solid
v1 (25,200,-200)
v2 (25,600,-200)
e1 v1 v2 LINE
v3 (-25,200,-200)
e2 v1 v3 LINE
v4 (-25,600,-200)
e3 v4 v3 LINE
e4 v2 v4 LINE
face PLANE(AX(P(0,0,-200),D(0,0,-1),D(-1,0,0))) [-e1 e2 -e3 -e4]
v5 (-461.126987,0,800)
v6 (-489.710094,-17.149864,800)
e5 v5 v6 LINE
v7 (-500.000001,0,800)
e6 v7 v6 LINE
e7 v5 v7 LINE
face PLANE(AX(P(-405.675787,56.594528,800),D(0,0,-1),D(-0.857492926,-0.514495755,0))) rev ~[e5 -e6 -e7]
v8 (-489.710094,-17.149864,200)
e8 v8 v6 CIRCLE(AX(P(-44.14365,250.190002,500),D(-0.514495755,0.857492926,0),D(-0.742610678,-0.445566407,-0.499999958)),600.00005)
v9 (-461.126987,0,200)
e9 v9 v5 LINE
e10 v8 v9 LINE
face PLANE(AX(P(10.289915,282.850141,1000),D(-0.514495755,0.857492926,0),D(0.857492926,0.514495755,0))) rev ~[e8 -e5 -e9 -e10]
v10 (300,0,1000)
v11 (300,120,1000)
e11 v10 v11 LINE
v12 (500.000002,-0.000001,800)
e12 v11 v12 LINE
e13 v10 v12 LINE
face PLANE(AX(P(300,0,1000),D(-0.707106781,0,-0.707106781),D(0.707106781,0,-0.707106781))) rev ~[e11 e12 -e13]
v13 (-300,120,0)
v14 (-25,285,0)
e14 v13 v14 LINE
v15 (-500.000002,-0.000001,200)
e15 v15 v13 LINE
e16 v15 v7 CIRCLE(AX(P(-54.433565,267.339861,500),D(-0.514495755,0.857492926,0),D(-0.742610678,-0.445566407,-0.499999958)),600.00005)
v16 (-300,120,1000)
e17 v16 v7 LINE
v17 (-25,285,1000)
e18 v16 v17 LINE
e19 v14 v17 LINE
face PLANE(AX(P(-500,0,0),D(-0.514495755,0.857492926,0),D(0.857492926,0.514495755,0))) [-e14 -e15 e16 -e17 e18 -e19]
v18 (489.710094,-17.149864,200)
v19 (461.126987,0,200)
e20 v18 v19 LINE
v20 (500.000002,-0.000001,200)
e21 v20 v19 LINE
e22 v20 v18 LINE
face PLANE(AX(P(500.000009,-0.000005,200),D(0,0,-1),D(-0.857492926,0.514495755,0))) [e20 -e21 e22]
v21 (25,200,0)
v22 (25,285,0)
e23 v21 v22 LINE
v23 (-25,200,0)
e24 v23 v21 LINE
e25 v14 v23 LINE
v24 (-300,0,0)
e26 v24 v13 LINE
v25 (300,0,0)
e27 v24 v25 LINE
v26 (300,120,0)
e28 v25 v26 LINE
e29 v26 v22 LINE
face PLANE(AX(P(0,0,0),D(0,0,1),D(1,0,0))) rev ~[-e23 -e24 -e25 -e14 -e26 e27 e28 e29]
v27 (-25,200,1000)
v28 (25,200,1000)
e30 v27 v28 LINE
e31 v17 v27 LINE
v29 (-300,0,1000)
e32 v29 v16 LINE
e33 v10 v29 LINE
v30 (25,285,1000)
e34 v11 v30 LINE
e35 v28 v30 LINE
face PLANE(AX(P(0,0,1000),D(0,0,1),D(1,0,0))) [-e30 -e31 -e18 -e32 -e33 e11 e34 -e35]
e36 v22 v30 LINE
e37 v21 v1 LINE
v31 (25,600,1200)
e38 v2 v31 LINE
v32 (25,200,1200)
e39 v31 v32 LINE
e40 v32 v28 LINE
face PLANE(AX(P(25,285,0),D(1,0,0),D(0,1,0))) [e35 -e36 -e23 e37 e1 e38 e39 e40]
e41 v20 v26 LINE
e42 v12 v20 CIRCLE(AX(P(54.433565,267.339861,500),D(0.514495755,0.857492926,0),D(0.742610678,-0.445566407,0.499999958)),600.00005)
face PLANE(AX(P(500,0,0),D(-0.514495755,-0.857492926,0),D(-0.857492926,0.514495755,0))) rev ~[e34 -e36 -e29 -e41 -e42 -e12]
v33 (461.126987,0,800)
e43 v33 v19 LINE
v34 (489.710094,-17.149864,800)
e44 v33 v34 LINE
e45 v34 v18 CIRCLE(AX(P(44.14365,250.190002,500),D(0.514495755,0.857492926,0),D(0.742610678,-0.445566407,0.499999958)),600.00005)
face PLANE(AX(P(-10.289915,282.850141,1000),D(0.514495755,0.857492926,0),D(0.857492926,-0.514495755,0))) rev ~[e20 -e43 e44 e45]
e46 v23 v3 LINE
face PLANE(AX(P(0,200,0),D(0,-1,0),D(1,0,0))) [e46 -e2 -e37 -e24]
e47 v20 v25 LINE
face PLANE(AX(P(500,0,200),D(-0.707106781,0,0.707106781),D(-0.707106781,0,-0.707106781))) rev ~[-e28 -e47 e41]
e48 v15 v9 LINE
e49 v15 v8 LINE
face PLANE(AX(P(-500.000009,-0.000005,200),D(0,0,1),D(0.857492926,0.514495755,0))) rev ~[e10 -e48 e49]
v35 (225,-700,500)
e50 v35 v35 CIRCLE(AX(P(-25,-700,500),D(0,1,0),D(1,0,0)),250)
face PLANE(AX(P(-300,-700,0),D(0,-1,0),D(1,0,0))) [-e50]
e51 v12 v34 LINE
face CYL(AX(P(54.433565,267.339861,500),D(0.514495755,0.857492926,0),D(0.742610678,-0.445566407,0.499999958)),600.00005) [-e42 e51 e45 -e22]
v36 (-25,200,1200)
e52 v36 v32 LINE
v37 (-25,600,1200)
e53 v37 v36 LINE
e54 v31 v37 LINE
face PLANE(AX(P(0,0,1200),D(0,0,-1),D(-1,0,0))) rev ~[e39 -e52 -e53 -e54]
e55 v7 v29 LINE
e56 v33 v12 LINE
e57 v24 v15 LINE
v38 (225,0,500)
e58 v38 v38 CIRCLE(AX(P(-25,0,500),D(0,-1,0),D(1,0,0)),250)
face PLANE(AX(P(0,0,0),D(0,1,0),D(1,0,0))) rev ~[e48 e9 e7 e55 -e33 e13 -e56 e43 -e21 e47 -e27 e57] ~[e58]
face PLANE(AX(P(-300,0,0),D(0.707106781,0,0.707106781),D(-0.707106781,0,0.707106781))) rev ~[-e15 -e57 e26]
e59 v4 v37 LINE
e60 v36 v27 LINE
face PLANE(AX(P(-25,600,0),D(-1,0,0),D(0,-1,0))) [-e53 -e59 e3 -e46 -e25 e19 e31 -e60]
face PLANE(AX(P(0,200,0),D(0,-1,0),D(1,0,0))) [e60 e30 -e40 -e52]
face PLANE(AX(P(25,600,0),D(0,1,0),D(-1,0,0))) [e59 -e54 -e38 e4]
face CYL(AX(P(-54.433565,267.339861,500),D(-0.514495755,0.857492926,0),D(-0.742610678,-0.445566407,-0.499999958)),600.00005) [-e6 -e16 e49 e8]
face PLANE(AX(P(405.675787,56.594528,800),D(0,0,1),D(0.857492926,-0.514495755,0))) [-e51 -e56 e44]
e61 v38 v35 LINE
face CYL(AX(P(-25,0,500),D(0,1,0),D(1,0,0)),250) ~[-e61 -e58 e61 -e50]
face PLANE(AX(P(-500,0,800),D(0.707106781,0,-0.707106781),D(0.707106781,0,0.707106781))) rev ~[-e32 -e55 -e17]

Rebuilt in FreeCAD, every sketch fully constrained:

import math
import FreeCAD as App
import Part
import Sketcher

V = App.Vector

doc = App.newDocument("Part")
body = doc.addObject("PartDesign::Body", "Body")

sketch1 = doc.addObject("Sketcher::SketchObject", "Sketch")
body.addObject(sketch1)
sketch1.AttachmentSupport = (doc.XY_Plane, [""])
sketch1.MapMode = "FlatFace"
sketch1.addGeometry(Part.LineSegment(V(500, 0, 0), V(0, 300, 0)), False)
sketch1.addGeometry(Part.LineSegment(V(0, 300, 0), V(-500, 0, 0)), False)
sketch1.addGeometry(Part.LineSegment(V(-500, 0, 0), V(500, 0, 0)), False)
sketch1.addConstraint(Sketcher.Constraint("Coincident", 0, 2, 1, 1))
sketch1.addConstraint(Sketcher.Constraint("Coincident", 1, 2, 2, 1))
sketch1.addConstraint(Sketcher.Constraint("Coincident", 2, 2, 0, 1))
sketch1.addConstraint(Sketcher.Constraint("Horizontal", 2))
sketch1.addConstraint(Sketcher.Constraint("Symmetric", 1, 2, 2, 2, -1, 1))
sketch1.addConstraint(Sketcher.Constraint("PointOnObject", 0, 2, -2))
sketch1.addConstraint(Sketcher.Constraint("DistanceY", -1, 1, 0, 2, 300.0))
sketch1.addConstraint(Sketcher.Constraint("DistanceX", 1, 2, -1, 1, 500.0))
pad1 = doc.addObject("PartDesign::Pad", "Pad")
body.addObject(pad1)
pad1.Profile = sketch1
pad1.Length = 1000

sketch2 = doc.addObject("Sketcher::SketchObject", "Sketch001")
body.addObject(sketch2)
sketch2.AttachmentSupport = (doc.XZ_Plane, [""])
sketch2.MapMode = "FlatFace"
sketch2.addGeometry(Part.LineSegment(V(-300, 1000, 0), V(-500, 1000, 0)), False)
sketch2.addGeometry(Part.LineSegment(V(-500, 1000, 0), V(-500, 800, 0)), False)
sketch2.addGeometry(Part.LineSegment(V(-500, 800, 0), V(-300, 1000, 0)), False)
sketch2.addGeometry(Part.LineSegment(V(500, 1000, 0), V(300, 1000, 0)), False)
sketch2.addGeometry(Part.LineSegment(V(300, 1000, 0), V(500, 800, 0)), False)
sketch2.addGeometry(Part.LineSegment(V(500, 800, 0), V(500, 1000, 0)), False)
sketch2.addGeometry(Part.LineSegment(V(-300, 0, 0), V(-500, 200, 0)), False)
sketch2.addGeometry(Part.LineSegment(V(-500, 200, 0), V(-500, 0, 0)), False)
sketch2.addGeometry(Part.LineSegment(V(-500, 0, 0), V(-300, 0, 0)), False)
sketch2.addGeometry(Part.LineSegment(V(500, 0, 0), V(500, 200, 0)), False)
sketch2.addGeometry(Part.LineSegment(V(500, 200, 0), V(300, 0, 0)), False)
sketch2.addGeometry(Part.LineSegment(V(300, 0, 0), V(500, 0, 0)), False)
sketch2.addConstraint(Sketcher.Constraint("Coincident", 0, 2, 1, 1))
sketch2.addConstraint(Sketcher.Constraint("Coincident", 1, 2, 2, 1))
sketch2.addConstraint(Sketcher.Constraint("Coincident", 2, 2, 0, 1))
sketch2.addConstraint(Sketcher.Constraint("Coincident", 3, 2, 4, 1))
sketch2.addConstraint(Sketcher.Constraint("Coincident", 4, 2, 5, 1))
sketch2.addConstraint(Sketcher.Constraint("Coincident", 5, 2, 3, 1))
sketch2.addConstraint(Sketcher.Constraint("Coincident", 6, 2, 7, 1))
sketch2.addConstraint(Sketcher.Constraint("Coincident", 7, 2, 8, 1))
sketch2.addConstraint(Sketcher.Constraint("Coincident", 8, 2, 6, 1))
sketch2.addConstraint(Sketcher.Constraint("Coincident", 9, 2, 10, 1))
sketch2.addConstraint(Sketcher.Constraint("Coincident", 10, 2, 11, 1))
sketch2.addConstraint(Sketcher.Constraint("Coincident", 11, 2, 9, 1))
sketch2.addConstraint(Sketcher.Constraint("Horizontal", 0))
sketch2.addConstraint(Sketcher.Constraint("Vertical", 1))
sketch2.addConstraint(Sketcher.Constraint("Horizontal", 3))
sketch2.addConstraint(Sketcher.Constraint("Vertical", 5))
sketch2.addConstraint(Sketcher.Constraint("Vertical", 7))
sketch2.addConstraint(Sketcher.Constraint("Horizontal", 8))
sketch2.addConstraint(Sketcher.Constraint("Vertical", 9))
sketch2.addConstraint(Sketcher.Constraint("Horizontal", 11))
sketch2.addConstraint(Sketcher.Constraint("Symmetric", 8, 2, 10, 2, -1, 1))
sketch2.addConstraint(Sketcher.Constraint("Symmetric", 2, 2, 3, 2, -2))
sketch2.addConstraint(Sketcher.Constraint("Symmetric", 1, 2, 4, 2, -2))
sketch2.addConstraint(Sketcher.Constraint("Symmetric", 6, 2, 9, 2, -2))
sketch2.addConstraint(Sketcher.Constraint("PointOnObject", 7, 2, -1))
sketch2.addConstraint(Sketcher.Constraint("Perpendicular", 2, 4))
sketch2.addConstraint(Sketcher.Constraint("Parallel", 4, 6))
sketch2.addConstraint(Sketcher.Constraint("Vertical", 1, 2, 6, 2))
sketch2.addConstraint(Sketcher.Constraint("Vertical", 2, 2, 8, 2))
sketch2.addConstraint(Sketcher.Constraint("DistanceX", 0, 2, 0, 1, 200.0))
sketch2.addConstraint(Sketcher.Constraint("DistanceX", 0, 2, -1, 1, 500.0))
sketch2.addConstraint(Sketcher.Constraint("DistanceY", -1, 1, 0, 2, 1000.0))
pocket1 = doc.addObject("PartDesign::Pocket", "Pocket")
body.addObject(pocket1)
pocket1.Profile = sketch2
pocket1.Length = 1000

sketch3 = doc.addObject("Sketcher::SketchObject", "Sketch002")
body.addObject(sketch3)
sketch3.Placement = App.Placement(V(0, 300, 1000), App.Rotation(V(0.857492926, -0.514495755, 0), V(0, 0, -1), V(0.514495755, 0.857492926, 0), "ZXY"))
sketch3.addGeometry(Part.ArcOfCircle(Part.Circle(V(63, 500, 0), V(0, 0, 1), 600), math.radians(-30), math.radians(30)), False)
sketch3.addGeometry(Part.LineSegment(V(583, 800, 0), V(473, 800, 0)), False)
sketch3.addGeometry(Part.LineSegment(V(473, 800, 0), V(473, 200, 0)), False)
sketch3.addGeometry(Part.LineSegment(V(473, 200, 0), V(583, 200, 0)), False)
sketch3.addConstraint(Sketcher.Constraint("Coincident", 0, 2, 1, 1))
sketch3.addConstraint(Sketcher.Constraint("Coincident", 1, 2, 2, 1))
sketch3.addConstraint(Sketcher.Constraint("Coincident", 2, 2, 3, 1))
sketch3.addConstraint(Sketcher.Constraint("Coincident", 3, 2, 0, 1))
sketch3.addConstraint(Sketcher.Constraint("Horizontal", 1))
sketch3.addConstraint(Sketcher.Constraint("Vertical", 2))
sketch3.addConstraint(Sketcher.Constraint("Horizontal", 3))
sketch3.addConstraint(Sketcher.Constraint("Vertical", 0, 2, 3, 2))
sketch3.addConstraint(Sketcher.Constraint("Radius", 0, 600.0))
sketch3.addConstraint(Sketcher.Constraint("DistanceX", 1, 2, 1, 1, 110.0))
sketch3.addConstraint(Sketcher.Constraint("DistanceY", 2, 2, 2, 1, 600.0))
sketch3.addConstraint(Sketcher.Constraint("DistanceY", -1, 1, 0, 3, 500.0))
sketch3.addConstraint(Sketcher.Constraint("DistanceX", -1, 1, 0, 3, 63.48))
pad2 = doc.addObject("PartDesign::Pad", "Pad001")
body.addObject(pad2)
pad2.Profile = sketch3
pad2.Length = 20
pad2.Reversed = True

sketch4 = doc.addObject("Sketcher::SketchObject", "Sketch003")
body.addObject(sketch4)
sketch4.Placement = App.Placement(V(0, 300, 1000), App.Rotation(V(0.857492926, 0.514495755, 0), V(0, 0, -1), V(-0.514495755, 0.857492926, 0), "ZXY"))
sketch4.addGeometry(Part.LineSegment(V(-473, 800, 0), V(-583, 800, 0)), False)
sketch4.addGeometry(Part.ArcOfCircle(Part.Circle(V(-63, 500, 0), V(0, 0, 1), 600), math.radians(150), math.radians(210)), False)
sketch4.addGeometry(Part.LineSegment(V(-583, 200, 0), V(-473, 200, 0)), False)
sketch4.addGeometry(Part.LineSegment(V(-473, 200, 0), V(-473, 800, 0)), False)
sketch4.addConstraint(Sketcher.Constraint("Coincident", 0, 2, 1, 1))
sketch4.addConstraint(Sketcher.Constraint("Coincident", 1, 2, 2, 1))
sketch4.addConstraint(Sketcher.Constraint("Coincident", 2, 2, 3, 1))
sketch4.addConstraint(Sketcher.Constraint("Coincident", 3, 2, 0, 1))
sketch4.addConstraint(Sketcher.Constraint("Horizontal", 0))
sketch4.addConstraint(Sketcher.Constraint("Horizontal", 2))
sketch4.addConstraint(Sketcher.Constraint("Vertical", 3))
sketch4.addConstraint(Sketcher.Constraint("Vertical", 0, 2, 1, 2))
sketch4.addConstraint(Sketcher.Constraint("Radius", 1, 600.0))
sketch4.addConstraint(Sketcher.Constraint("DistanceX", 0, 2, 0, 1, 110.0))
sketch4.addConstraint(Sketcher.Constraint("DistanceY", 3, 1, 3, 2, 600.0))
sketch4.addConstraint(Sketcher.Constraint("DistanceY", -1, 1, 1, 3, 500.0))
sketch4.addConstraint(Sketcher.Constraint("DistanceX", 1, 3, -1, 1, 63.48))
pad3 = doc.addObject("PartDesign::Pad", "Pad002")
body.addObject(pad3)
pad3.Profile = sketch4
pad3.Length = 20
pad3.Reversed = True

sketch5 = doc.addObject("Sketcher::SketchObject", "Sketch004")
body.addObject(sketch5)
sketch5.AttachmentSupport = (doc.XY_Plane, [""])
sketch5.MapMode = "FlatFace"
sketch5.addGeometry(Part.LineSegment(V(25, 600, 0), V(25, 200, 0)), False)
sketch5.addGeometry(Part.LineSegment(V(25, 200, 0), V(-25, 200, 0)), False)
sketch5.addGeometry(Part.LineSegment(V(-25, 200, 0), V(-25, 600, 0)), False)
sketch5.addGeometry(Part.LineSegment(V(-25, 600, 0), V(25, 600, 0)), False)
sketch5.addConstraint(Sketcher.Constraint("Coincident", 0, 2, 1, 1))
sketch5.addConstraint(Sketcher.Constraint("Coincident", 1, 2, 2, 1))
sketch5.addConstraint(Sketcher.Constraint("Coincident", 2, 2, 3, 1))
sketch5.addConstraint(Sketcher.Constraint("Coincident", 3, 2, 0, 1))
sketch5.addConstraint(Sketcher.Constraint("Vertical", 0))
sketch5.addConstraint(Sketcher.Constraint("Horizontal", 1))
sketch5.addConstraint(Sketcher.Constraint("Vertical", 2))
sketch5.addConstraint(Sketcher.Constraint("Horizontal", 3))
sketch5.addConstraint(Sketcher.Constraint("DistanceY", 0, 2, 0, 1, 400.0))
sketch5.addConstraint(Sketcher.Constraint("DistanceX", -1, 1, 0, 2, 25.0))
sketch5.addConstraint(Sketcher.Constraint("DistanceX", 1, 2, -1, 1, 25.0))
sketch5.addConstraint(Sketcher.Constraint("DistanceY", -1, 1, 0, 2, 200.0))
pad4 = doc.addObject("PartDesign::Pad", "Pad003")
body.addObject(pad4)
pad4.Profile = sketch5
pad4.Type = "TwoLengths"
pad4.Length = 200
pad4.Length2 = 1200
pad4.Reversed = True

sketch6 = doc.addObject("Sketcher::SketchObject", "Sketch005")
body.addObject(sketch6)
sketch6.AttachmentSupport = (doc.XZ_Plane, [""])
sketch6.MapMode = "FlatFace"
sketch6.addGeometry(Part.Circle(V(-25, 500, 0), V(0, 0, 1), 250), False)
sketch6.addConstraint(Sketcher.Constraint("Diameter", 0, 500.0))
sketch6.addConstraint(Sketcher.Constraint("DistanceY", -1, 1, 0, 3, 500.0))
sketch6.addConstraint(Sketcher.Constraint("DistanceX", 0, 3, -1, 1, 25.0))
pad5 = doc.addObject("PartDesign::Pad", "Pad004")
body.addObject(pad5)
pad5.Profile = sketch6
pad5.Length = 700

doc.recompute()
